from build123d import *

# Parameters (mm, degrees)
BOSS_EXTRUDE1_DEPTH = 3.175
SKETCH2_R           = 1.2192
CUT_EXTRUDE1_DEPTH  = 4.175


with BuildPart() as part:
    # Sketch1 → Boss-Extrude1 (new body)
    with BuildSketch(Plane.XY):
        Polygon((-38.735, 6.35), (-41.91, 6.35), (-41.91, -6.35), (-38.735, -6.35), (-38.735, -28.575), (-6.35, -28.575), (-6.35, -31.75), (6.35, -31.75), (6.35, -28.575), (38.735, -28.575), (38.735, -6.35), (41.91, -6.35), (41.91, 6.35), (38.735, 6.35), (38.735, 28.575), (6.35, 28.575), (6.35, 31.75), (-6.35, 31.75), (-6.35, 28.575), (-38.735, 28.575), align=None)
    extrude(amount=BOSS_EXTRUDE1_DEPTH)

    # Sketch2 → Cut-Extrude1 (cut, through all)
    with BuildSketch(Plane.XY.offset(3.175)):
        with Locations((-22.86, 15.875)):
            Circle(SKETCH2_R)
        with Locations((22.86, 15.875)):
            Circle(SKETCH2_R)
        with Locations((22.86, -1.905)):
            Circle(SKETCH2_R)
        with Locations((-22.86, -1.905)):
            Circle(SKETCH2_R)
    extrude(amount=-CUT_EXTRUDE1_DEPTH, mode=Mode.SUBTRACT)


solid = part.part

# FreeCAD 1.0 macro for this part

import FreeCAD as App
import Part
import Sketcher
from FreeCAD import Vector
Q = App.Units.Quantity

doc = App.newDocument("Part")
params = doc.addObject("Spreadsheet::Sheet", "Params")
for row, (alias, value) in enumerate([
    ("sketch1_width", "0.5 in"),
    ("sketch1_width2", "0.125 in"),
    ("pad1_length", "0.125 in"),
    ("sketch2_diameter", "0.096 in"),
], start=1):
    params.set(f"A{row}", alias)
    params.set(f"B{row}", "=" + value)
    params.setAlias(f"B{row}", alias)

body = doc.addObject("PartDesign::Body", "Body")

# Sketch on XY plane
sketch1 = body.newObject("Sketcher::SketchObject", "Sketch")
sketch1.AttachmentSupport = (doc.getObject("XY_Plane"), [""])
sketch1.MapMode = "FlatFace"
sketch1.addGeometry(Part.LineSegment(Vector(-38.735, 6.35, 0), Vector(-41.91, 6.35, 0)), False)
sketch1.addGeometry(Part.LineSegment(Vector(-41.91, 6.35, 0), Vector(-41.91, -6.35, 0)), False)
sketch1.addGeometry(Part.LineSegment(Vector(-41.91, -6.35, 0), Vector(-38.735, -6.35, 0)), False)
sketch1.addGeometry(Part.LineSegment(Vector(-38.735, -6.35, 0), Vector(-38.735, -28.575, 0)), False)
sketch1.addGeometry(Part.LineSegment(Vector(-38.735, -28.575, 0), Vector(-6.35, -28.575, 0)), False)
sketch1.addGeometry(Part.LineSegment(Vector(-6.35, -28.575, 0), Vector(-6.35, -31.75, 0)), False)
sketch1.addGeometry(Part.LineSegment(Vector(-6.35, -31.75, 0), Vector(6.35, -31.75, 0)), False)
sketch1.addGeometry(Part.LineSegment(Vector(6.35, -31.75, 0), Vector(6.35, -28.575, 0)), False)
sketch1.addGeometry(Part.LineSegment(Vector(6.35, -28.575, 0), Vector(38.735, -28.575, 0)), False)
sketch1.addGeometry(Part.LineSegment(Vector(38.735, -28.575, 0), Vector(38.735, -6.35, 0)), False)
sketch1.addGeometry(Part.LineSegment(Vector(38.735, -6.35, 0), Vector(41.91, -6.35, 0)), False)
sketch1.addGeometry(Part.LineSegment(Vector(41.91, -6.35, 0), Vector(41.91, 6.35, 0)), False)
sketch1.addGeometry(Part.LineSegment(Vector(41.91, 6.35, 0), Vector(38.735, 6.35, 0)), False)
sketch1.addGeometry(Part.LineSegment(Vector(38.735, 6.35, 0), Vector(38.735, 28.575, 0)), False)
sketch1.addGeometry(Part.LineSegment(Vector(38.735, 28.575, 0), Vector(6.35, 28.575, 0)), False)
sketch1.addGeometry(Part.LineSegment(Vector(6.35, 28.575, 0), Vector(6.35, 31.75, 0)), False)
sketch1.addGeometry(Part.LineSegment(Vector(6.35, 31.75, 0), Vector(-6.35, 31.75, 0)), False)
sketch1.addGeometry(Part.LineSegment(Vector(-6.35, 31.75, 0), Vector(-6.35, 28.575, 0)), False)
sketch1.addGeometry(Part.LineSegment(Vector(-6.35, 28.575, 0), Vector(-38.735, 28.575, 0)), False)
sketch1.addGeometry(Part.LineSegment(Vector(-38.735, 28.575, 0), Vector(-38.735, 6.35, 0)), False)
sketch1.addConstraint(Sketcher.Constraint("Coincident", 0, 2, 1, 1))
sketch1.addConstraint(Sketcher.Constraint("Coincident", 1, 2, 2, 1))
sketch1.addConstraint(Sketcher.Constraint("Coincident", 2, 2, 3, 1))
sketch1.addConstraint(Sketcher.Constraint("Coincident", 3, 2, 4, 1))
sketch1.addConstraint(Sketcher.Constraint("Coincident", 4, 2, 5, 1))
sketch1.addConstraint(Sketcher.Constraint("Coincident", 5, 2, 6, 1))
sketch1.addConstraint(Sketcher.Constraint("Coincident", 6, 2, 7, 1))
sketch1.addConstraint(Sketcher.Constraint("Coincident", 7, 2, 8, 1))
sketch1.addConstraint(Sketcher.Constraint("Coincident", 8, 2, 9, 1))
sketch1.addConstraint(Sketcher.Constraint("Coincident", 9, 2, 10, 1))
sketch1.addConstraint(Sketcher.Constraint("Coincident", 10, 2, 11, 1))
sketch1.addConstraint(Sketcher.Constraint("Coincident", 11, 2, 12, 1))
sketch1.addConstraint(Sketcher.Constraint("Coincident", 12, 2, 13, 1))
sketch1.addConstraint(Sketcher.Constraint("Coincident", 13, 2, 14, 1))
sketch1.addConstraint(Sketcher.Constraint("Coincident", 14, 2, 15, 1))
sketch1.addConstraint(Sketcher.Constraint("Coincident", 15, 2, 16, 1))
sketch1.addConstraint(Sketcher.Constraint("Coincident", 16, 2, 17, 1))
sketch1.addConstraint(Sketcher.Constraint("Coincident", 17, 2, 18, 1))
sketch1.addConstraint(Sketcher.Constraint("Coincident", 18, 2, 19, 1))
sketch1.addConstraint(Sketcher.Constraint("Coincident", 19, 2, 0, 1))
sketch1.addConstraint(Sketcher.Constraint("Horizontal", 0))
sketch1.addConstraint(Sketcher.Constraint("Vertical", 1))
sketch1.addConstraint(Sketcher.Constraint("Horizontal", 2))
sketch1.addConstraint(Sketcher.Constraint("Vertical", 3))
sketch1.addConstraint(Sketcher.Constraint("Horizontal", 4))
sketch1.addConstraint(Sketcher.Constraint("Vertical", 5))
sketch1.addConstraint(Sketcher.Constraint("Horizontal", 6))
sketch1.addConstraint(Sketcher.Constraint("Vertical", 7))
sketch1.addConstraint(Sketcher.Constraint("Horizontal", 8))
sketch1.addConstraint(Sketcher.Constraint("Vertical", 9))
sketch1.addConstraint(Sketcher.Constraint("Horizontal", 10))
sketch1.addConstraint(Sketcher.Constraint("Vertical", 11))
sketch1.addConstraint(Sketcher.Constraint("Horizontal", 12))
sketch1.addConstraint(Sketcher.Constraint("Vertical", 13))
sketch1.addConstraint(Sketcher.Constraint("Horizontal", 14))
sketch1.addConstraint(Sketcher.Constraint("Vertical", 15))
sketch1.addConstraint(Sketcher.Constraint("Horizontal", 16))
sketch1.addConstraint(Sketcher.Constraint("Vertical", 17))
sketch1.addConstraint(Sketcher.Constraint("Horizontal", 18))
sketch1.addConstraint(Sketcher.Constraint("Vertical", 19))
sketch1.addConstraint(Sketcher.Constraint("Symmetric", 0, 2, 10, 2, -1, 1))
sketch1.addConstraint(Sketcher.Constraint("Symmetric", 2, 2, 12, 2, -1, 1))
sketch1.addConstraint(Sketcher.Constraint("Symmetric", 4, 2, 14, 2, -1, 1))
sketch1.addConstraint(Sketcher.Constraint("Symmetric", 6, 2, 16, 2, -1, 1))
sketch1.addConstraint(Sketcher.Constraint("Symmetric", 8, 2, 18, 2, -1, 1))
sketch1.addConstraint(Sketcher.Constraint("Symmetric", 4, 2, 7, 2, -2))
sketch1.addConstraint(Sketcher.Constraint("Symmetric", 2, 2, 9, 2, -2))
sketch1.addConstraint(Sketcher.Constraint("Equal", 16, 1))
sketch1.addConstraint(Sketcher.Constraint("Equal", 12, 5))
sketch1.addConstraint(Sketcher.Constraint("DistanceX", 6, 1, 6, 2, Q("0.5 in")))
sketch1.addConstraint(Sketcher.Constraint("DistanceY", 5, 2, 2, 2, Q("1 in")))
sketch1.addConstraint(Sketcher.Constraint("DistanceX", 1, 2, 4, 2, Q("1.4 in")))
sketch1.addConstraint(Sketcher.Constraint("DistanceX", 0, 2, 0, 1, Q("0.125 in")))
sketch1.setExpression("Constraints[49]", "Params.sketch1_width")
sketch1.setExpression("Constraints[52]", "Params.sketch1_width2")
pad1 = body.newObject("PartDesign::Pad", "Pad")
pad1.Profile = sketch1
pad1.setExpression("Length", "Params.pad1_length")

# Sketch on XY plane
sketch2 = body.newObject("Sketcher::SketchObject", "Sketch001")
sketch2.AttachmentSupport = (doc.getObject("XY_Plane"), [""])
sketch2.MapMode = "FlatFace"
sketch2.AttachmentOffset = App.Placement(Vector(0, 0, 0.125 * 25.4), App.Rotation())
sketch2.addGeometry(Part.Circle(Vector(-22.86, 15.875, 0), Vector(0, 0, 1), 1.2192), False)
sketch2.addGeometry(Part.Circle(Vector(22.86, 15.875, 0), Vector(0, 0, 1), 1.2192), False)
sketch2.addGeometry(Part.Circle(Vector(22.86, -1.905, 0), Vector(0, 0, 1), 1.2192), False)
sketch2.addGeometry(Part.Circle(Vector(-22.86, -1.905, 0), Vector(0, 0, 1), 1.2192), False)
sketch2.addConstraint(Sketcher.Constraint("Equal", 0, 1))
sketch2.addConstraint(Sketcher.Constraint("Equal", 1, 2))
sketch2.addConstraint(Sketcher.Constraint("Equal", 2, 3))
sketch2.addConstraint(Sketcher.Constraint("Symmetric", 0, 3, 1, 3, -2))
sketch2.addConstraint(Sketcher.Constraint("Symmetric", 2, 3, 3, 3, -2))
sketch2.addConstraint(Sketcher.Constraint("Vertical", 1, 3, 2, 3))
sketch2.addConstraint(Sketcher.Constraint("Diameter", 0, Q("0.096 in")))
sketch2.addConstraint(Sketcher.Constraint("DistanceX", 0, 3, -1, 1, Q("0.9 in")))
sketch2.addConstraint(Sketcher.Constraint("DistanceY", 2, 3, 1, 3, Q("0.7 in")))
sketch2.addConstraint(Sketcher.Constraint("DistanceY", -1, 1, 0, 3, Q("0.625 in")))
sketch2.setExpression("Constraints[6]", "Params.sketch2_diameter")
pocket1 = body.newObject("PartDesign::Pocket", "Pocket")
pocket1.Profile = sketch2
pocket1.Type = "ThroughAll"

doc.recompute()
